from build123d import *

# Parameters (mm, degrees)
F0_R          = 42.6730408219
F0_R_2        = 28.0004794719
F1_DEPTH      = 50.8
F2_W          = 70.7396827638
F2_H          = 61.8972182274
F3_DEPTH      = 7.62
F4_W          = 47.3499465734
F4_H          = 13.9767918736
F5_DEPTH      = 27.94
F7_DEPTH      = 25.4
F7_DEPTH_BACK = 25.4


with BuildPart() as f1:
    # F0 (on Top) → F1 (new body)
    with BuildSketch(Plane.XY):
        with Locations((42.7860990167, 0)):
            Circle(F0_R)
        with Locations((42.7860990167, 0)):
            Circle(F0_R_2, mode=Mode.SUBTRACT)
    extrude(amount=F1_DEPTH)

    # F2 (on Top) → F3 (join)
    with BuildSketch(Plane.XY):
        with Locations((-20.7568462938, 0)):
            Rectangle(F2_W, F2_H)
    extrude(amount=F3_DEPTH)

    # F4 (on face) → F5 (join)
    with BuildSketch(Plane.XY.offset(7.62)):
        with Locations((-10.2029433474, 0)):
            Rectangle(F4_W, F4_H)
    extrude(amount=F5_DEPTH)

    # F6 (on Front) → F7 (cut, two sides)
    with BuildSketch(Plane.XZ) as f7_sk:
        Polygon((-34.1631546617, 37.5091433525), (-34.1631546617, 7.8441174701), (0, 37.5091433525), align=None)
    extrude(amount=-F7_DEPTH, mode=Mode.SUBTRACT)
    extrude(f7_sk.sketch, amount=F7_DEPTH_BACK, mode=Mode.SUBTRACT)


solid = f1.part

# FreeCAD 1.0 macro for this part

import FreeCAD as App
import Part
import Sketcher
Q = App.Units.Quantity

doc = App.newDocument("Part")
body = doc.addObject("PartDesign::Body", "Body")

sketch1 = body.newObject("Sketcher::SketchObject", "Sketch")
sketch1.AttachmentSupport = (doc.getObject("XY_Plane"), [""])
sketch1.MapMode = "FlatFace"
sketch1.addGeometry(Part.Circle(App.Vector(43, 0, 0), App.Vector(0, 0, 1), 43), False)
sketch1.addGeometry(Part.Circle(App.Vector(43, 0, 0), App.Vector(0, 0, 1), 28), False)
sketch1.addConstraint(Sketcher.Constraint("Coincident", 1, 3, 0, 3))
sketch1.addConstraint(Sketcher.Constraint("PointOnObject", 0, 3, -1))
sketch1.addConstraint(Sketcher.Constraint("Diameter", 0, 85.346082))
sketch1.addConstraint(Sketcher.Constraint("Diameter", 1, 56.000959))
sketch1.addConstraint(Sketcher.Constraint("DistanceX", -1, 1, 0, 3, 42.786099))
pad1 = body.newObject("PartDesign::Pad", "Pad")
pad1.Profile = sketch1
pad1.Length = Q("2 in")

sketch2 = body.newObject("Sketcher::SketchObject", "Sketch001")
sketch2.AttachmentSupport = (doc.getObject("XY_Plane"), [""])
sketch2.MapMode = "FlatFace"
sketch2.addGeometry(Part.LineSegment(App.Vector(-56, 31, 0), App.Vector(-56, -31, 0)), False)
sketch2.addGeometry(Part.LineSegment(App.Vector(-56, -31, 0), App.Vector(15, -31, 0)), False)
sketch2.addGeometry(Part.LineSegment(App.Vector(15, -31, 0), App.Vector(15, 31, 0)), False)
sketch2.addGeometry(Part.LineSegment(App.Vector(15, 31, 0), App.Vector(-56, 31, 0)), False)
sketch2.addConstraint(Sketcher.Constraint("Coincident", 0, 2, 1, 1))
sketch2.addConstraint(Sketcher.Constraint("Coincident", 1, 2, 2, 1))
sketch2.addConstraint(Sketcher.Constraint("Coincident", 2, 2, 3, 1))
sketch2.addConstraint(Sketcher.Constraint("Coincident", 3, 2, 0, 1))
sketch2.addConstraint(Sketcher.Constraint("Vertical", 0))
sketch2.addConstraint(Sketcher.Constraint("Horizontal", 1))
sketch2.addConstraint(Sketcher.Constraint("Vertical", 2))
sketch2.addConstraint(Sketcher.Constraint("Horizontal", 3))
sketch2.addConstraint(Sketcher.Constraint("DistanceY", 0, 2, 0, 1, 61.897218))
sketch2.addConstraint(Sketcher.Constraint("DistanceX", 1, 1, 1, 2, 70.739683))
sketch2.addConstraint(Sketcher.Constraint("DistanceY", 0, 2, -1, 1, 30.948609))
sketch2.addConstraint(Sketcher.Constraint("DistanceX", 0, 2, -1, 1, 56.126688))
pad2 = body.newObject("PartDesign::Pad", "Pad001")
pad2.Profile = sketch2
pad2.Length = Q("0.3 in")

sketch3 = body.newObject("Sketcher::SketchObject", "Sketch002")
sketch3.AttachmentSupport = (doc.getObject("XY_Plane"), [""])
sketch3.MapMode = "FlatFace"
sketch3.AttachmentOffset = App.Placement(App.Vector(0, 0, 0.3 * 25.4), App.Rotation())
sketch3.addGeometry(Part.LineSegment(App.Vector(-34, 7, 0), App.Vector(-34, -7, 0)), False)
sketch3.addGeometry(Part.LineSegment(App.Vector(-34, -7, 0), App.Vector(13, -7, 0)), False)
sketch3.addGeometry(Part.LineSegment(App.Vector(13, -7, 0), App.Vector(13, 7, 0)), False)
sketch3.addGeometry(Part.LineSegment(App.Vector(13, 7, 0), App.Vector(-34, 7, 0)), False)
sketch3.addConstraint(Sketcher.Constraint("Coincident", 0, 2, 1, 1))
sketch3.addConstraint(Sketcher.Constraint("Coincident", 1, 2, 2, 1))
sketch3.addConstraint(Sketcher.Constraint("Coincident", 2, 2, 3, 1))
sketch3.addConstraint(Sketcher.Constraint("Coincident", 3, 2, 0, 1))
sketch3.addConstraint(Sketcher.Constraint("Vertical", 0))
sketch3.addConstraint(Sketcher.Constraint("Horizontal", 1))
sketch3.addConstraint(Sketcher.Constraint("Vertical", 2))
sketch3.addConstraint(Sketcher.Constraint("Horizontal", 3))
sketch3.addConstraint(Sketcher.Constraint("DistanceY", 0, 2, 0, 1, 13.976792))
sketch3.addConstraint(Sketcher.Constraint("DistanceX", 1, 1, 1, 2, 47.349947))
sketch3.addConstraint(Sketcher.Constraint("DistanceX", -1, 1, 1, 2, 13.47203))
sketch3.addConstraint(Sketcher.Constraint("DistanceY", 0, 2, -1, 1, 6.988396))
pad3 = body.newObject("PartDesign::Pad", "Pad002")
pad3.Profile = sketch3
pad3.Length = Q("1.1 in")

sketch4 = body.newObject("Sketcher::SketchObject", "Sketch003")
sketch4.AttachmentSupport = (doc.getObject("XZ_Plane"), [""])
sketch4.MapMode = "FlatFace"
sketch4.addGeometry(Part.LineSegment(App.Vector(-34, 38, 0), App.Vector(-34, 8, 0)), False)
sketch4.addGeometry(Part.LineSegment(App.Vector(-34, 8, 0), App.Vector(0, 38, 0)), False)
sketch4.addGeometry(Part.LineSegment(App.Vector(0, 38, 0), App.Vector(-34, 38, 0)), False)
sketch4.addConstraint(Sketcher.Constraint("Coincident", 0, 2, 1, 1))
sketch4.addConstraint(Sketcher.Constraint("Coincident", 1, 2, 2, 1))
sketch4.addConstraint(Sketcher.Constraint("Coincident", 2, 2, 0, 1))
sketch4.addConstraint(Sketcher.Constraint("Vertical", 0))
sketch4.addConstraint(Sketcher.Constraint("Horizontal", 2))
sketch4.addConstraint(Sketcher.Constraint("PointOnObject", 1, 2, -2))
sketch4.addConstraint(Sketcher.Constraint("DistanceX", 2, 2, 2, 1, 34.163155))
sketch4.addConstraint(Sketcher.Constraint("DistanceY", 0, 2, 0, 1, 29.665026))
sketch4.addConstraint(Sketcher.Constraint("DistanceY", -1, 1, 0, 2, 7.844117))
pocket1 = body.newObject("PartDesign::Pocket", "Pocket")
pocket1.Profile = sketch4
pocket1.Type = "ThroughAll"
pocket1.Midplane = True

doc.recompute()
